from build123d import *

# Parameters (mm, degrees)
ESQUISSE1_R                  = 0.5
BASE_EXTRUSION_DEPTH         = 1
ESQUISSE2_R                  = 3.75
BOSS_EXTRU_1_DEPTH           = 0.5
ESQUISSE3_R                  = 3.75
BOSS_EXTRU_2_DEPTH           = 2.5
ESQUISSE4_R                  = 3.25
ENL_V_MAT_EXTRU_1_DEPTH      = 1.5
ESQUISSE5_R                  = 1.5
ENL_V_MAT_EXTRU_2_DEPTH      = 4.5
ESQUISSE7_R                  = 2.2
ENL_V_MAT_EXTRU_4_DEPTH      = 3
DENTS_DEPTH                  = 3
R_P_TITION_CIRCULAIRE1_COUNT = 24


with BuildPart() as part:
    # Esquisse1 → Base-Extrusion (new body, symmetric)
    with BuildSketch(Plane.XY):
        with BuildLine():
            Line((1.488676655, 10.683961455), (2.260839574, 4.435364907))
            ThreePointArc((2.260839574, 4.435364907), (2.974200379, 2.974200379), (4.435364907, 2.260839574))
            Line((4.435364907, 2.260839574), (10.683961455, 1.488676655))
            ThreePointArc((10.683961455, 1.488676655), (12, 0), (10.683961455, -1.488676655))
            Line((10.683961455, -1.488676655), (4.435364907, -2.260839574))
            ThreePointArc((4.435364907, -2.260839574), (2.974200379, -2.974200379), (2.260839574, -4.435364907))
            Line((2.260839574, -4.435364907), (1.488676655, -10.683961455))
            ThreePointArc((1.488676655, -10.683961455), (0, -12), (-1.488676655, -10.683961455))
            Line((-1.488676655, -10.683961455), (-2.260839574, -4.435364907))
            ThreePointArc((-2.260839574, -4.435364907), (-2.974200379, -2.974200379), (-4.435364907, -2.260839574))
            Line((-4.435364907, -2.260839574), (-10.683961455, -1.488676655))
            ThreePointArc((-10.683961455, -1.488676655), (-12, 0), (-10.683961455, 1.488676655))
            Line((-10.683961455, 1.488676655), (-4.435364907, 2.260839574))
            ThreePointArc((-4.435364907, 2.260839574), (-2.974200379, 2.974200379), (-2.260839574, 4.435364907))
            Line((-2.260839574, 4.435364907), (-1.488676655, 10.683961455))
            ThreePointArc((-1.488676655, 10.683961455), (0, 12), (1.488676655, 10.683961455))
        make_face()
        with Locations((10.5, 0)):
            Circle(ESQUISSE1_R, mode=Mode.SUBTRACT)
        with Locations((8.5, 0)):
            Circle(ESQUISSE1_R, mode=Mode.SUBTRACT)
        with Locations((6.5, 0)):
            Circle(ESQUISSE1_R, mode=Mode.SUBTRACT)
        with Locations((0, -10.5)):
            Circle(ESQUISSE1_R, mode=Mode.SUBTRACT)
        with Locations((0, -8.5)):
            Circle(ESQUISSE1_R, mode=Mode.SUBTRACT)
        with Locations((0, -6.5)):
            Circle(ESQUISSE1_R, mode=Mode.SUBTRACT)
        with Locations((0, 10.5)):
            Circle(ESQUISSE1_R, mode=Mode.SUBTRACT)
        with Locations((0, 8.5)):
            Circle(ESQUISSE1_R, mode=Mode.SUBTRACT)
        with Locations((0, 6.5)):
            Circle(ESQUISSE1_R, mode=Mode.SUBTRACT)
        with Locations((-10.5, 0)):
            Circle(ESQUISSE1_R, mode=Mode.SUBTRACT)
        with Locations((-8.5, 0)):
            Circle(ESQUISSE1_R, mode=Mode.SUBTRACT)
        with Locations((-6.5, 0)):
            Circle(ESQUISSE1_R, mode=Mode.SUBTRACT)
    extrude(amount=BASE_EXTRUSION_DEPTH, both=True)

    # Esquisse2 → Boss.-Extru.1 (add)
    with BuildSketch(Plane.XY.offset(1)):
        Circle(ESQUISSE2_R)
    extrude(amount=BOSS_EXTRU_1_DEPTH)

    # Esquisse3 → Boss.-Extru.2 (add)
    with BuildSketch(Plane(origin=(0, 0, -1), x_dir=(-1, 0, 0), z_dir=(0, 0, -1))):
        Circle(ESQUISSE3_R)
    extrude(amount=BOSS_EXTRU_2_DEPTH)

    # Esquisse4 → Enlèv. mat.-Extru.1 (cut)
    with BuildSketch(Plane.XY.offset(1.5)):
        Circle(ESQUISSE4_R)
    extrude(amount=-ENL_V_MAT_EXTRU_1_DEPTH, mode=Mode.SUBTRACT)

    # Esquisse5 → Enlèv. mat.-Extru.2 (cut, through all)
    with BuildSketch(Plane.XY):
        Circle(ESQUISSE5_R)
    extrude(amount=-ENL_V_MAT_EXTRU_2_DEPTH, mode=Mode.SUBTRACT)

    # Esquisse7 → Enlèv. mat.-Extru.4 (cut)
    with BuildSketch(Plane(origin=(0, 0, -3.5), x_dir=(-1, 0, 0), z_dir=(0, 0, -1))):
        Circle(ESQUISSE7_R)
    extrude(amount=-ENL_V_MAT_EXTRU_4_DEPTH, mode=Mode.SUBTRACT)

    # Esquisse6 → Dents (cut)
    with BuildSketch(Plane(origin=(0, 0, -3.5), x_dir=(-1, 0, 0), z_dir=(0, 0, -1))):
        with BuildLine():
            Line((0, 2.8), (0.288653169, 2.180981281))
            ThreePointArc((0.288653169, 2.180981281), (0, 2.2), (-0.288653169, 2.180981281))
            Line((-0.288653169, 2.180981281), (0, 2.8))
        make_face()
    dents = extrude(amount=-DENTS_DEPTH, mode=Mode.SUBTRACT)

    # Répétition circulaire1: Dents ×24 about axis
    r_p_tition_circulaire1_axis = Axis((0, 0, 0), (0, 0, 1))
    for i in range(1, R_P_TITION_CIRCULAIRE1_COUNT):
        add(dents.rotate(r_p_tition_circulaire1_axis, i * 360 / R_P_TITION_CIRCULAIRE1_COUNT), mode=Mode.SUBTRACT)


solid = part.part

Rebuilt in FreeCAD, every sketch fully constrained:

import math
import FreeCAD as App
import Part
import Sketcher

V = App.Vector
Q = App.Units.Quantity

doc = App.newDocument("Part")
body = doc.addObject("PartDesign::Body", "Body")

# Sketch on XY plane
sketch1 = body.newObject("Sketcher::SketchObject", "Sketch")
sketch1.AttachmentSupport = (doc.getObject("XY_Plane"), [""])
sketch1.MapMode = "FlatFace"
sketch1.addGeometry([
    Part.LineSegment(V(2.3, 4.4, 0), V(1.5, 10.7, 0)),  # 0
    Part.ArcOfCircle(Part.Circle(V(0, 10.5, 0), V(0, 0, 1), 1.5), math.radians(7), math.radians(173)),  # 1
    Part.LineSegment(V(-1.5, 10.7, 0), V(-2.3, 4.4, 0)),  # 2
    Part.ArcOfCircle(Part.Circle(V(-4.7, 4.7, 0), V(0, 0, 1), 2.5), math.radians(-83), math.radians(-7)),  # 3
    Part.LineSegment(V(-4.4, 2.3, 0), V(-10.7, 1.5, 0)),  # 4
    Part.ArcOfCircle(Part.Circle(V(-10.5, 0, 0), V(0, 0, 1), 1.5), math.radians(97), math.radians(263)),  # 5
    Part.LineSegment(V(-10.7, -1.5, 0), V(-4.4, -2.3, 0)),  # 6
    Part.ArcOfCircle(Part.Circle(V(-4.7, -4.7, 0), V(0, 0, 1), 2.5), math.radians(7), math.radians(83)),  # 7
    Part.LineSegment(V(-2.3, -4.4, 0), V(-1.5, -10.7, 0)),  # 8
    Part.ArcOfCircle(Part.Circle(V(0, -10.5, 0), V(0, 0, 1), 1.5), math.radians(-173), math.radians(-7)),  # 9
    Part.LineSegment(V(1.5, -10.7, 0), V(2.3, -4.4, 0)),  # 10
    Part.ArcOfCircle(Part.Circle(V(4.7, -4.7, 0), V(0, 0, 1), 2.5), math.radians(97), math.radians(173)),  # 11
    Part.LineSegment(V(4.4, -2.3, 0), V(10.7, -1.5, 0)),  # 12
    Part.ArcOfCircle(Part.Circle(V(10.5, 0, 0), V(0, 0, 1), 1.5), math.radians(-83), math.radians(83)),  # 13
    Part.LineSegment(V(10.7, 1.5, 0), V(4.4, 2.3, 0)),  # 14
    Part.ArcOfCircle(Part.Circle(V(4.7, 4.7, 0), V(0, 0, 1), 2.5), math.radians(-173), math.radians(-97)),  # 15
    Part.Circle(V(0, -10.5, 0), V(0, 0, 1), 0.5),  # 16
    Part.Circle(V(0, -8.5, 0), V(0, 0, 1), 0.5),  # 17
    Part.Circle(V(0, -6.5, 0), V(0, 0, 1), 0.5),  # 18
    Part.Circle(V(10.5, 0, 0), V(0, 0, 1), 0.5),  # 19
    Part.Circle(V(8.5, 0, 0), V(0, 0, 1), 0.5),  # 20
    Part.Circle(V(6.5, 0, 0), V(0, 0, 1), 0.5),  # 21
    Part.Circle(V(-6.5, 0, 0), V(0, 0, 1), 0.5),  # 22
    Part.Circle(V(-8.5, 0, 0), V(0, 0, 1), 0.5),  # 23
    Part.Circle(V(-10.5, 0, 0), V(0, 0, 1), 0.5),  # 24
    Part.Circle(V(0, 6.5, 0), V(0, 0, 1), 0.5),  # 25
    Part.Circle(V(0, 8.5, 0), V(0, 0, 1), 0.5),  # 26
    Part.Circle(V(0, 10.5, 0), V(0, 0, 1), 0.5),  # 27
], False)
sketch1.addConstraint([
    Sketcher.Constraint("Tangent", 0, 2, 1, 1),
    Sketcher.Constraint("Tangent", 1, 2, 2, 1),
    Sketcher.Constraint("Tangent", 2, 2, 3, 2),
    Sketcher.Constraint("Tangent", 3, 1, 4, 1),
    Sketcher.Constraint("Tangent", 4, 2, 5, 1),
    Sketcher.Constraint("Tangent", 5, 2, 6, 1),
    Sketcher.Constraint("Tangent", 6, 2, 7, 2),
    Sketcher.Constraint("Tangent", 7, 1, 8, 1),
    Sketcher.Constraint("Tangent", 8, 2, 9, 1),
    Sketcher.Constraint("Tangent", 9, 2, 10, 1),
    Sketcher.Constraint("Tangent", 10, 2, 11, 2),
    Sketcher.Constraint("Tangent", 11, 1, 12, 1),
    Sketcher.Constraint("Tangent", 12, 2, 13, 1),
    Sketcher.Constraint("Tangent", 13, 2, 14, 1),
    Sketcher.Constraint("Tangent", 14, 2, 15, 2),
    Sketcher.Constraint("Tangent", 15, 1, 0, 1),
    Sketcher.Constraint("Coincident", 16, 3, 9, 3),
    Sketcher.Constraint("Coincident", 19, 3, 13, 3),
    Sketcher.Constraint("Coincident", 24, 3, 5, 3),
    Sketcher.Constraint("Coincident", 27, 3, 1, 3),
    Sketcher.Constraint("Equal", 1, 5),
    Sketcher.Constraint("Equal", 3, 7),
    Sketcher.Constraint("Equal", 5, 9),
    Sketcher.Constraint("Equal", 7, 11),
    Sketcher.Constraint("Equal", 9, 13),
    Sketcher.Constraint("Equal", 11, 15),
    Sketcher.Constraint("Equal", 16, 17),
    Sketcher.Constraint("Equal", 17, 18),
    Sketcher.Constraint("Equal", 18, 19),
    Sketcher.Constraint("Equal", 19, 20),
    Sketcher.Constraint("Equal", 20, 21),
    Sketcher.Constraint("Equal", 21, 22),
    Sketcher.Constraint("Equal", 22, 23),
    Sketcher.Constraint("Equal", 23, 24),
    Sketcher.Constraint("Equal", 24, 25),
    Sketcher.Constraint("Equal", 25, 26),
    Sketcher.Constraint("Equal", 26, 27),
    Sketcher.Constraint("Symmetric", 1, 3, 9, 3, -1, 1),
    Sketcher.Constraint("Symmetric", 3, 3, 11, 3, -1, 1),
    Sketcher.Constraint("Symmetric", 5, 3, 13, 3, -1, 1),
    Sketcher.Constraint("Symmetric", 7, 3, 15, 3, -1, 1),
    Sketcher.Constraint("Symmetric", 21, 3, 22, 3, -1, 1),
    Sketcher.Constraint("Symmetric", 20, 3, 23, 3, -1, 1),
    Sketcher.Constraint("Symmetric", 18, 3, 25, 3, -1, 1),
    Sketcher.Constraint("Symmetric", 17, 3, 26, 3, -1, 1),
    Sketcher.Constraint("Symmetric", 7, 3, 11, 3, -2),
    Sketcher.Constraint("PointOnObject", 1, 3, -2),
    Sketcher.Constraint("PointOnObject", 5, 3, -1),
    Sketcher.Constraint("PointOnObject", 17, 3, -2),
    Sketcher.Constraint("PointOnObject", 18, 3, -2),
    Sketcher.Constraint("PointOnObject", 20, 3, -1),
    Sketcher.Constraint("PointOnObject", 21, 3, -1),
    Sketcher.Constraint("Perpendicular", 0, 4),
    Sketcher.Constraint("Equal", 2, 4),
    Sketcher.Constraint("Diameter", 16, Q("1 mm")),
    Sketcher.Constraint("Radius", 1, Q("1.5 mm")),
    Sketcher.Constraint("Radius", 3, Q("2.5 mm")),
    Sketcher.Constraint("DistanceY", 9, 3, 1, 3, Q("21 mm")),
    Sketcher.Constraint("DistanceY", 9, 3, 17, 3, Q("2 mm")),
    Sketcher.Constraint("DistanceY", 17, 3, 18, 3, Q("2 mm")),
    Sketcher.Constraint("DistanceX", 20, 3, 13, 3, Q("2 mm")),
    Sketcher.Constraint("DistanceX", 21, 3, 20, 3, Q("2 mm")),
    Sketcher.Constraint("DistanceY", -1, 1, 0, 2, Q("10.683961 mm")),
])
pad1 = body.newObject("PartDesign::Pad", "Pad")
pad1.Profile = sketch1
pad1.Length = 2
pad1.Midplane = True

# Sketch on XY plane
sketch2 = body.newObject("Sketcher::SketchObject", "Sketch001")
sketch2.AttachmentSupport = (doc.getObject("XY_Plane"), [""])
sketch2.MapMode = "FlatFace"
sketch2.AttachmentOffset = App.Placement(V(0, 0, 1), App.Rotation())
sketch2.addGeometry(Part.Circle(V(0, 0, 0), V(0, 0, 1), 3.8), False)
sketch2.addConstraint([
    Sketcher.Constraint("Coincident", 0, 3, -1, 1),
    Sketcher.Constraint("Diameter", 0, Q("7.5 mm")),
])
pad2 = body.newObject("PartDesign::Pad", "Pad001")
pad2.Profile = sketch2
pad2.Length = 0.5

# Sketch on XY plane
sketch3 = body.newObject("Sketcher::SketchObject", "Sketch002")
sketch3.AttachmentSupport = (doc.getObject("XY_Plane"), [""])
sketch3.MapMode = "FlatFace"
sketch3.AttachmentOffset = App.Placement(V(0, 0, -1), App.Rotation())
sketch3.addGeometry(Part.Circle(V(0, 0, 0), V(0, 0, 1), 3.8), False)
sketch3.addConstraint([
    Sketcher.Constraint("Coincident", 0, 3, -1, 1),
    Sketcher.Constraint("Diameter", 0, Q("7.5 mm")),
])
pad3 = body.newObject("PartDesign::Pad", "Pad002")
pad3.Profile = sketch3
pad3.Length = 2.5
pad3.Reversed = True

# Sketch on XY plane
sketch4 = body.newObject("Sketcher::SketchObject", "Sketch003")
sketch4.AttachmentSupport = (doc.getObject("XY_Plane"), [""])
sketch4.MapMode = "FlatFace"
sketch4.AttachmentOffset = App.Placement(V(0, 0, 1.5), App.Rotation())
sketch4.addGeometry(Part.Circle(V(0, 0, 0), V(0, 0, 1), 3.2), False)
sketch4.addConstraint([
    Sketcher.Constraint("Coincident", 0, 3, -1, 1),
    Sketcher.Constraint("Diameter", 0, Q("6.5 mm")),
])
pocket1 = body.newObject("PartDesign::Pocket", "Pocket")
pocket1.Profile = sketch4
pocket1.Length = 1.5

# Sketch on XY plane
sketch5 = body.newObject("Sketcher::SketchObject", "Sketch004")
sketch5.AttachmentSupport = (doc.getObject("XY_Plane"), [""])
sketch5.MapMode = "FlatFace"
sketch5.addGeometry(Part.Circle(V(0, 0, 0), V(0, 0, 1), 1.5), False)
sketch5.addConstraint([
    Sketcher.Constraint("Coincident", 0, 3, -1, 1),
    Sketcher.Constraint("Diameter", 0, Q("3 mm")),
])
pocket2 = body.newObject("PartDesign::Pocket", "Pocket001")
pocket2.Profile = sketch5
pocket2.Type = "ThroughAll"

# Sketch on XY plane
sketch6 = body.newObject("Sketcher::SketchObject", "Sketch005")
sketch6.AttachmentSupport = (doc.getObject("XY_Plane"), [""])
sketch6.MapMode = "FlatFace"
sketch6.AttachmentOffset = App.Placement(V(0, 0, -3.5), App.Rotation())
sketch6.addGeometry(Part.Circle(V(0, 0, 0), V(0, 0, 1), 2.2), False)
sketch6.addConstraint([
    Sketcher.Constraint("Coincident", 0, 3, -1, 1),
    Sketcher.Constraint("Diameter", 0, Q("4.4 mm")),
])
pocket3 = body.newObject("PartDesign::Pocket", "Pocket002")
pocket3.Profile = sketch6
pocket3.Length = 3
pocket3.Reversed = True

# Sketch on XY plane
sketch7 = body.newObject("Sketcher::SketchObject", "Sketch006")
sketch7.AttachmentSupport = (doc.getObject("XY_Plane"), [""])
sketch7.MapMode = "FlatFace"
sketch7.AttachmentOffset = App.Placement(V(0, 0, -3.5), App.Rotation())
sketch7.addGeometry([
    Part.LineSegment(V(-0.3, 2.2, 0), V(0, 2.8, 0)),
    Part.LineSegment(V(0, 2.8, 0), V(0.3, 2.2, 0)),
    Part.ArcOfCircle(Part.Circle(V(0, 0, 0), V(0, 0, 1), 2.2), math.radians(82.46), math.radians(97.54)),
], False)
sketch7.addConstraint([
    Sketcher.Constraint("Coincident", 0, 2, 1, 1),
    Sketcher.Constraint("Coincident", 1, 2, 2, 1),
    Sketcher.Constraint("Coincident", 2, 2, 0, 1),
    Sketcher.Constraint("Coincident", 2, 3, -1, 1),
    Sketcher.Constraint("PointOnObject", 0, 2, -2),
    Sketcher.Constraint("Horizontal", 1, 2, 2, 2),
    Sketcher.Constraint("Radius", 2, Q("2.2 mm")),
    Sketcher.Constraint("Angle", 0, Q("65 deg")),
    Sketcher.Constraint("DistanceY", -1, 1, 0, 2, Q("2.8 mm")),
])
pocket4 = body.newObject("PartDesign::Pocket", "Pocket003")
pocket4.Profile = sketch7
pocket4.Length = 3
pocket4.Reversed = True
doc.recompute()

polarpattern = body.newObject("PartDesign::PolarPattern", "PolarPattern")
polarpattern.Originals = [pocket4]
polarpattern.Axis = (doc.getObject("Z_Axis"), [""])
polarpattern.Angle = 360
polarpattern.Occurrences = 24
body.Tip = polarpattern

doc.recompute()
